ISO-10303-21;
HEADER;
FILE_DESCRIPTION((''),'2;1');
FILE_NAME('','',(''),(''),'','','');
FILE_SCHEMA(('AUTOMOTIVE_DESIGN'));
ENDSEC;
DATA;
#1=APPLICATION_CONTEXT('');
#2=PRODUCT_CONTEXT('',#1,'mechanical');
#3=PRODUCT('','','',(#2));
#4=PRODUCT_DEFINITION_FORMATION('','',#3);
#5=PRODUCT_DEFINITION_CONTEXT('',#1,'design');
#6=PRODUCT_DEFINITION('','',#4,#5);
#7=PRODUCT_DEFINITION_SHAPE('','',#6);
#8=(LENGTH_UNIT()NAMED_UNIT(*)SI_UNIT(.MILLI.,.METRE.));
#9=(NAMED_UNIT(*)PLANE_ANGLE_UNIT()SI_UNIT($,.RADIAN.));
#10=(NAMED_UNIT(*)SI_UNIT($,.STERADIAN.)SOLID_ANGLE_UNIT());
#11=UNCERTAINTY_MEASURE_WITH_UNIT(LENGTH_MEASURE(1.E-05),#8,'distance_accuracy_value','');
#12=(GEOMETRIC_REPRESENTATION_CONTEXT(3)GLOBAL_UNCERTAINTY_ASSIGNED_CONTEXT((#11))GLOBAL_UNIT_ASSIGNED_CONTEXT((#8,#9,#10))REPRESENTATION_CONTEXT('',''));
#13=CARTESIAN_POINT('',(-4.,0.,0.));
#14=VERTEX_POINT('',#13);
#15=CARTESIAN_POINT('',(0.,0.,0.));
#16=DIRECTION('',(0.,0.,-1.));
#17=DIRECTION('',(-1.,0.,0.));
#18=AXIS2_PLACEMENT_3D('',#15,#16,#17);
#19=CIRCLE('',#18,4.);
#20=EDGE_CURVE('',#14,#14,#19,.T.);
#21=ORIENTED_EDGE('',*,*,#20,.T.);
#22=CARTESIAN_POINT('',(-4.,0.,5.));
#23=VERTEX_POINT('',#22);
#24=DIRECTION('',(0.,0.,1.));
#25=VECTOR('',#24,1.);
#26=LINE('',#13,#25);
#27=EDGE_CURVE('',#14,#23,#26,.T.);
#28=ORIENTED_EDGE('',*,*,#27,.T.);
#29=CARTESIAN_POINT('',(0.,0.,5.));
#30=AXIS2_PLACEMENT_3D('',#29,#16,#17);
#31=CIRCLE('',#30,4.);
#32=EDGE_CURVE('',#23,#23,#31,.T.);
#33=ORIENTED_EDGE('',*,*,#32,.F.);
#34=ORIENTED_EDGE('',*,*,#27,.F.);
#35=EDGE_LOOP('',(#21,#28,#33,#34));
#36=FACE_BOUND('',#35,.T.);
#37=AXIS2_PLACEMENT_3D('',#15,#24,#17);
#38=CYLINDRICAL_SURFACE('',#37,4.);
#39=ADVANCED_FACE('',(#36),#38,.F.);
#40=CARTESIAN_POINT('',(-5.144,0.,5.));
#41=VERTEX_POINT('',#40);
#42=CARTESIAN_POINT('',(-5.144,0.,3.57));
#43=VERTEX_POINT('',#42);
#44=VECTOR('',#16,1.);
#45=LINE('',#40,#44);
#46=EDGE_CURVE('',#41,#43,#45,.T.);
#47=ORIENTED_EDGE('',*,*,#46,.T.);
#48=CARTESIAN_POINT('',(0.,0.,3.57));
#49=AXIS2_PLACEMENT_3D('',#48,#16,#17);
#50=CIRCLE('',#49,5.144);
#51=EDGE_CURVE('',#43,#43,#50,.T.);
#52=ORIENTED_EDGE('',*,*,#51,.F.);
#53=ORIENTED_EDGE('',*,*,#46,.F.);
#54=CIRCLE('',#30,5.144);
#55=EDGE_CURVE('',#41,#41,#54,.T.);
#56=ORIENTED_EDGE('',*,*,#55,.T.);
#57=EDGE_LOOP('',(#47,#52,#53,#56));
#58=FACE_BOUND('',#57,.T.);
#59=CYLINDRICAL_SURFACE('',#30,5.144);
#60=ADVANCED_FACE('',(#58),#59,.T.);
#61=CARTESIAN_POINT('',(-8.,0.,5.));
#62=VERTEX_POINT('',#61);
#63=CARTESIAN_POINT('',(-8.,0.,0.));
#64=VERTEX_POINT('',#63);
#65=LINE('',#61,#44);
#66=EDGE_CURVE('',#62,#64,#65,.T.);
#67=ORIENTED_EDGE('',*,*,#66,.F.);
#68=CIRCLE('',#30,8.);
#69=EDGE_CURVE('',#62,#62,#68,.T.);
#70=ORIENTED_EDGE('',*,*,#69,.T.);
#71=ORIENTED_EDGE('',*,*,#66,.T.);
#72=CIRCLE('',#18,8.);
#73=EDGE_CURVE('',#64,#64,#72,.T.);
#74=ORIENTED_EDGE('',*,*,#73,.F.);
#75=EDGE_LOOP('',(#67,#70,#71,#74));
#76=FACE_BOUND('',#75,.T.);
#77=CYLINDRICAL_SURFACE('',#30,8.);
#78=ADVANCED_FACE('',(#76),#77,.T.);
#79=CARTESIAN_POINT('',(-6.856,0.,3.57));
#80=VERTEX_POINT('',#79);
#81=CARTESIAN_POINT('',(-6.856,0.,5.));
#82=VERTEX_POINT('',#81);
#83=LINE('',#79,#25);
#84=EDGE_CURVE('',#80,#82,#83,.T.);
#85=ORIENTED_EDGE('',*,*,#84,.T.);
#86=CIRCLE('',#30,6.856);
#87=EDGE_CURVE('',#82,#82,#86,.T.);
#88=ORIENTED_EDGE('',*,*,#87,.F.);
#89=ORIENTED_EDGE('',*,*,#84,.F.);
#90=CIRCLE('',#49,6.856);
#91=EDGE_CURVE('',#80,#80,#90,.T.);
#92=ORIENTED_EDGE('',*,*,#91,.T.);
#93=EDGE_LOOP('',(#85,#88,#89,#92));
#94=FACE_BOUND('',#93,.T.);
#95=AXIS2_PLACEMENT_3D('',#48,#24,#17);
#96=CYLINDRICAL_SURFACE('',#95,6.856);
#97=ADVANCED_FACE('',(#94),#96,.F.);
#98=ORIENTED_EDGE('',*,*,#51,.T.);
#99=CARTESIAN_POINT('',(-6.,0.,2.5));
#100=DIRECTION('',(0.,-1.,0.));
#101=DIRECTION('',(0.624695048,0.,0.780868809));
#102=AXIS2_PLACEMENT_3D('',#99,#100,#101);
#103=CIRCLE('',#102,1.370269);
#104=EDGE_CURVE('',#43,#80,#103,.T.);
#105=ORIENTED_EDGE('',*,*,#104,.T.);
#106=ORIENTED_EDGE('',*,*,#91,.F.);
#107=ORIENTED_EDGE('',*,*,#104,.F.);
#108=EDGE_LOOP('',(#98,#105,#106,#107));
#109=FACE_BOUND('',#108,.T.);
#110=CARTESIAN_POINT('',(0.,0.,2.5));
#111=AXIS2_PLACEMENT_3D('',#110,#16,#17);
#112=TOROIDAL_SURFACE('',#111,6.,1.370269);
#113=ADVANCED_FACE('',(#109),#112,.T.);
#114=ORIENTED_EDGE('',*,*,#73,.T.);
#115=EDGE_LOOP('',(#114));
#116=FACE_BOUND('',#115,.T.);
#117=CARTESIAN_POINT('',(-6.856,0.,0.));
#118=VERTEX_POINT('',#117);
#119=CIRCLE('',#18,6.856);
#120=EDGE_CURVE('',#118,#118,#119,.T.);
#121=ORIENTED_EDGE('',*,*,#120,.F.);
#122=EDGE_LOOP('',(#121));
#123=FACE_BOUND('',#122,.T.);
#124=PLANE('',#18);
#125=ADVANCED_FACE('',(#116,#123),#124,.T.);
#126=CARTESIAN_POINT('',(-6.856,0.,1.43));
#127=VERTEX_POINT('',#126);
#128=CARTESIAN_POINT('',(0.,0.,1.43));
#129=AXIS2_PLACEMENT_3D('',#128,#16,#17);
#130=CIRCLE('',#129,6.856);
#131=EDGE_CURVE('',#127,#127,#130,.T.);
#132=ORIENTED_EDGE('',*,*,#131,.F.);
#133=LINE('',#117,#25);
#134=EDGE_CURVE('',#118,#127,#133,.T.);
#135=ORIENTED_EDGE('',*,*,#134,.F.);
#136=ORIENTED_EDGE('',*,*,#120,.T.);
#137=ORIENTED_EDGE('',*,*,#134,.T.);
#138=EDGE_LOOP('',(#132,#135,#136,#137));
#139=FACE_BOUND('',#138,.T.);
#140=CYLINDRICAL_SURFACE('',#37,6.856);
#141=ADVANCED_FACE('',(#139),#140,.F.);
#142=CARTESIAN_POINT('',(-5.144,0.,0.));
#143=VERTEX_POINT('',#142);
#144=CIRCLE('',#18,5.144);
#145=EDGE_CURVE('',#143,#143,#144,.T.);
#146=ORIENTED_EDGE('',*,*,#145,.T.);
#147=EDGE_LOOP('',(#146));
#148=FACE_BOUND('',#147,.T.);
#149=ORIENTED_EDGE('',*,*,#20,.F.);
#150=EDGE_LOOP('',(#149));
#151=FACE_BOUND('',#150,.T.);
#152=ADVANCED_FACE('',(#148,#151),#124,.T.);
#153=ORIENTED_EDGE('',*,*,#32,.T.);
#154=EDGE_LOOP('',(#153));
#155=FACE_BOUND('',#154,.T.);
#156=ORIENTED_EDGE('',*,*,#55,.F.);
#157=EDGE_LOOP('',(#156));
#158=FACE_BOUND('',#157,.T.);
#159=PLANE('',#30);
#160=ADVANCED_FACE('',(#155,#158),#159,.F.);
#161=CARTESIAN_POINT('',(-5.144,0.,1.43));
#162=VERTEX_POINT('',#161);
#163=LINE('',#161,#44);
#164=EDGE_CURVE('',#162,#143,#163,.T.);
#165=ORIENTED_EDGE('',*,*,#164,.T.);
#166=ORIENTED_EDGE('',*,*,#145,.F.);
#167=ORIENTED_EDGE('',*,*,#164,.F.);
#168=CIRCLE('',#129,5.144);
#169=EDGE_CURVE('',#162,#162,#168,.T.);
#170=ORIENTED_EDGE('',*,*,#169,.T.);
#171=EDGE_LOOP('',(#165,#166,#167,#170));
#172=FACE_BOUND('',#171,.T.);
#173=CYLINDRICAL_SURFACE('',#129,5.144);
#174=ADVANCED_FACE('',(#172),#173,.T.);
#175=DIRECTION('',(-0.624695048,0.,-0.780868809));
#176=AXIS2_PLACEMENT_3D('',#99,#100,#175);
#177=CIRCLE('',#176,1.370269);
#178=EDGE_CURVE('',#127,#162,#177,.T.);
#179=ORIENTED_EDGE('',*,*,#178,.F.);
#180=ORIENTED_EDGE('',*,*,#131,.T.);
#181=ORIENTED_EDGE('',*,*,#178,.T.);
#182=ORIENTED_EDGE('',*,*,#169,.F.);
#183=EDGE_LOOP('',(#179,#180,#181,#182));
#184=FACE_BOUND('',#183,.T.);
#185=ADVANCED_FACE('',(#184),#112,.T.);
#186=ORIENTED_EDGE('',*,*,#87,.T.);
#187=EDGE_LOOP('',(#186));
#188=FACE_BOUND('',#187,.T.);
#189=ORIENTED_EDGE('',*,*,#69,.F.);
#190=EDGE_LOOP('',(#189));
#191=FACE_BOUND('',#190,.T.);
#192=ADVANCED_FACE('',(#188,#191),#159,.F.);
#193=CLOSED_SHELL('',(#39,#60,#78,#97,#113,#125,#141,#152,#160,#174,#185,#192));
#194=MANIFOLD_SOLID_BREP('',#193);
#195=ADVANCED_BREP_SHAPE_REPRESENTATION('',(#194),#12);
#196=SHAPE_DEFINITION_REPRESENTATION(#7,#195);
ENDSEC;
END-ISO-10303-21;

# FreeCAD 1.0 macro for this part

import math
import FreeCAD as App
import Part
import Sketcher
from FreeCAD import Vector
Q = App.Units.Quantity

doc = App.newDocument("Part")
body = doc.addObject("PartDesign::Body", "Body")

# Sketch on XZ plane
sketch1 = body.newObject("Sketcher::SketchObject", "Sketch")
sketch1.AttachmentSupport = (doc.getObject("XZ_Plane"), [""])
sketch1.MapMode = "FlatFace"
sketch1.addGeometry(Part.LineSegment(Vector(-6.9, 5, 0), Vector(-8, 5, 0)), False)
sketch1.addGeometry(Part.LineSegment(Vector(-8, 5, 0), Vector(-8, 0, 0)), False)
sketch1.addGeometry(Part.LineSegment(Vector(-8, 0, 0), Vector(-6.9, 0, 0)), False)
sketch1.addGeometry(Part.LineSegment(Vector(-6.9, 0, 0), Vector(-6.9, 1.4, 0)), False)
sketch1.addGeometry(Part.ArcOfCircle(Part.Circle(Vector(-6, 2.5, 0), Vector(0, 0, 1), 1.4), math.radians(-129), math.radians(-51)), False)
sketch1.addGeometry(Part.LineSegment(Vector(-5.1, 1.4, 0), Vector(-5.1, 0, 0)), False)
sketch1.addGeometry(Part.LineSegment(Vector(-5.1, 0, 0), Vector(-4, 0, 0)), False)
sketch1.addGeometry(Part.LineSegment(Vector(-4, 0, 0), Vector(-4, 5, 0)), False)
sketch1.addGeometry(Part.LineSegment(Vector(-4, 5, 0), Vector(-5.1, 5, 0)), False)
sketch1.addGeometry(Part.LineSegment(Vector(-5.1, 5, 0), Vector(-5.1, 3.6, 0)), False)
sketch1.addGeometry(Part.ArcOfCircle(Part.Circle(Vector(-6, 2.5, 0), Vector(0, 0, 1), 1.4), math.radians(51), math.radians(129)), False)
sketch1.addGeometry(Part.LineSegment(Vector(-6.9, 3.6, 0), Vector(-6.9, 5, 0)), False)
sketch1.addConstraint(Sketcher.Constraint("Coincident", 0, 2, 1, 1))
sketch1.addConstraint(Sketcher.Constraint("Coincident", 1, 2, 2, 1))
sketch1.addConstraint(Sketcher.Constraint("Coincident", 2, 2, 3, 1))
sketch1.addConstraint(Sketcher.Constraint("Coincident", 3, 2, 4, 1))
sketch1.addConstraint(Sketcher.Constraint("Coincident", 4, 2, 5, 1))
sketch1.addConstraint(Sketcher.Constraint("Coincident", 5, 2, 6, 1))
sketch1.addConstraint(Sketcher.Constraint("Coincident", 6, 2, 7, 1))
sketch1.addConstraint(Sketcher.Constraint("Coincident", 7, 2, 8, 1))
sketch1.addConstraint(Sketcher.Constraint("Coincident", 8, 2, 9, 1))
sketch1.addConstraint(Sketcher.Constraint("Coincident", 9, 2, 10, 1))
sketch1.addConstraint(Sketcher.Constraint("Coincident", 10, 2, 11, 1))
sketch1.addConstraint(Sketcher.Constraint("Coincident", 11, 2, 0, 1))
sketch1.addConstraint(Sketcher.Constraint("Horizontal", 0))
sketch1.addConstraint(Sketcher.Constraint("Vertical", 1))
sketch1.addConstraint(Sketcher.Constraint("Horizontal", 2))
sketch1.addConstraint(Sketcher.Constraint("Vertical", 3))
sketch1.addConstraint(Sketcher.Constraint("Vertical", 5))
sketch1.addConstraint(Sketcher.Constraint("Horizontal", 6))
sketch1.addConstraint(Sketcher.Constraint("Vertical", 7))
sketch1.addConstraint(Sketcher.Constraint("Horizontal", 8))
sketch1.addConstraint(Sketcher.Constraint("Vertical", 9))
sketch1.addConstraint(Sketcher.Constraint("Vertical", 11))
sketch1.addConstraint(Sketcher.Constraint("Coincident", 10, 3, 4, 3))
sketch1.addConstraint(Sketcher.Constraint("Equal", 4, 10))
sketch1.addConstraint(Sketcher.Constraint("PointOnObject", 1, 2, -1))
sketch1.addConstraint(Sketcher.Constraint("PointOnObject", 5, 2, -1))
sketch1.addConstraint(Sketcher.Constraint("Horizontal", 3, 2, 4, 2))
sketch1.addConstraint(Sketcher.Constraint("Horizontal", 0, 2, 7, 2))
sketch1.addConstraint(Sketcher.Constraint("Horizontal", 9, 2, 10, 2))
sketch1.addConstraint(Sketcher.Constraint("Vertical", 5, 2, 8, 2))
sketch1.addConstraint(Sketcher.Constraint("Equal", 2, 6))
sketch1.addConstraint(Sketcher.Constraint("Equal", 5, 9))
sketch1.addConstraint(Sketcher.Constraint("DistanceY", 1, 2, 1, 1, Q("5 mm")))
sketch1.addConstraint(Sketcher.Constraint("DistanceX", 4, 3, -1, 1, Q("6 mm")))
sketch1.addConstraint(Sketcher.Constraint("DistanceX", 0, 2, -1, 1, Q("8 mm")))
sketch1.addConstraint(Sketcher.Constraint("DistanceY", 3, 1, 3, 2, Q("1.43 mm")))
sketch1.addConstraint(Sketcher.Constraint("DistanceX", 0, 2, 0, 1, Q("1.144 mm")))
revolution = body.newObject("PartDesign::Revolution", "Revolution")
revolution.Profile = sketch1
revolution.ReferenceAxis = (sketch1, ["V_Axis"])
revolution.Angle = 360

doc.recompute()
